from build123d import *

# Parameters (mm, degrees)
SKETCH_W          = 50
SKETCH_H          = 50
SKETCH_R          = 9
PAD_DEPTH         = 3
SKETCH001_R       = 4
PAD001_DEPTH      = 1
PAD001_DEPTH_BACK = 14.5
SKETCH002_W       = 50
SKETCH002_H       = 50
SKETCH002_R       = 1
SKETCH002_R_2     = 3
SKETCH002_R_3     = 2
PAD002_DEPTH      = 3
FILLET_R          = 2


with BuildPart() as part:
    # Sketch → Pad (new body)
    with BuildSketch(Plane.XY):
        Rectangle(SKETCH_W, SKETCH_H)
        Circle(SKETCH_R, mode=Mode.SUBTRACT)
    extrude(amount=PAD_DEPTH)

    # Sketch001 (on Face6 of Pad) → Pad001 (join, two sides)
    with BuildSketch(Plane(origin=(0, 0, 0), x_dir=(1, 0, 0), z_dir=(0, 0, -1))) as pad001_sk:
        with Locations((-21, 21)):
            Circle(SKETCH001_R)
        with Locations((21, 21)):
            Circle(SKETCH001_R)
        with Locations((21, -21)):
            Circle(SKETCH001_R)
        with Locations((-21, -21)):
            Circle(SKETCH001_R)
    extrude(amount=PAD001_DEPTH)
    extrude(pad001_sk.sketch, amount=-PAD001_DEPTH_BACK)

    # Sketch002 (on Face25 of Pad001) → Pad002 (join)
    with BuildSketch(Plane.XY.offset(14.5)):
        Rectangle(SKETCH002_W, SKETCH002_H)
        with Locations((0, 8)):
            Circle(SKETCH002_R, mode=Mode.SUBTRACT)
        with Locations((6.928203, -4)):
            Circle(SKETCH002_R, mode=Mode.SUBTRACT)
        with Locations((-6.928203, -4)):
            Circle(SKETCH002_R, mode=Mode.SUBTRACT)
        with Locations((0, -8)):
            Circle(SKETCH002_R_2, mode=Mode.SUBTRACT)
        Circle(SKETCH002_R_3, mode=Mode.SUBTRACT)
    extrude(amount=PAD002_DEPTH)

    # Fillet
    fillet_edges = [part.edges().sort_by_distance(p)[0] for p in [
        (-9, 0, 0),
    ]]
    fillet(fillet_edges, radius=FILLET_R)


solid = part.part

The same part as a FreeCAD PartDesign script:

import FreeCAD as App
import Part
import Sketcher
from FreeCAD import Vector


def edges_at(feature, points):
    """Names of the edges that pass closest to the given points."""
    edges = feature.Shape.Edges
    near = lambda p: min(range(len(edges)), key=lambda i: edges[i].distToShape(Part.Vertex(*p))[0])
    return sorted({f"Edge{near(p) + 1}" for p in points})

doc = App.newDocument("Part")
body = doc.addObject("PartDesign::Body", "Body")

# Sketch on XY plane
sketch1 = doc.addObject("Sketcher::SketchObject", "Sketch")
body.addObject(sketch1)
sketch1.AttachmentSupport = (doc.XY_Plane, [""])
sketch1.MapMode = "FlatFace"
sketch1.addGeometry(Part.LineSegment(Vector(-25, 25, 0), Vector(-25, -25, 0)), False)
sketch1.addGeometry(Part.LineSegment(Vector(-25, -25, 0), Vector(25, -25, 0)), False)
sketch1.addGeometry(Part.LineSegment(Vector(25, -25, 0), Vector(25, 25, 0)), False)
sketch1.addGeometry(Part.LineSegment(Vector(25, 25, 0), Vector(-25, 25, 0)), False)
sketch1.addGeometry(Part.Circle(Vector(0, 0, 0), Vector(0, 0, 1), 9), False)
sketch1.addConstraint(Sketcher.Constraint("Coincident", 0, 2, 1, 1))
sketch1.addConstraint(Sketcher.Constraint("Coincident", 1, 2, 2, 1))
sketch1.addConstraint(Sketcher.Constraint("Coincident", 2, 2, 3, 1))
sketch1.addConstraint(Sketcher.Constraint("Coincident", 3, 2, 0, 1))
sketch1.addConstraint(Sketcher.Constraint("Vertical", 0))
sketch1.addConstraint(Sketcher.Constraint("Horizontal", 1))
sketch1.addConstraint(Sketcher.Constraint("Vertical", 2))
sketch1.addConstraint(Sketcher.Constraint("Horizontal", 3))
sketch1.addConstraint(Sketcher.Constraint("Coincident", 4, 3, -1, 1))
sketch1.addConstraint(Sketcher.Constraint("Symmetric", 0, 2, 2, 2, -1, 1))
sketch1.addConstraint(Sketcher.Constraint("Equal", 3, 0))
sketch1.addConstraint(Sketcher.Constraint("Diameter", 4, 18.0))
sketch1.addConstraint(Sketcher.Constraint("DistanceX", 1, 1, 1, 2, 50.0))
pad1 = doc.addObject("PartDesign::Pad", "Pad")
body.addObject(pad1)
pad1.Profile = sketch1
pad1.Length = 3

# Sketch on XY plane
sketch2 = doc.addObject("Sketcher::SketchObject", "Sketch001")
body.addObject(sketch2)
sketch2.AttachmentSupport = (doc.XY_Plane, [""])
sketch2.MapMode = "FlatFace"
sketch2.addGeometry(Part.Circle(Vector(-21, -21, 0), Vector(0, 0, 1), 4), False)
sketch2.addGeometry(Part.Circle(Vector(21, -21, 0), Vector(0, 0, 1), 4), False)
sketch2.addGeometry(Part.Circle(Vector(21, 21, 0), Vector(0, 0, 1), 4), False)
sketch2.addGeometry(Part.Circle(Vector(-21, 21, 0), Vector(0, 0, 1), 4), False)
sketch2.addConstraint(Sketcher.Constraint("Equal", 0, 1))
sketch2.addConstraint(Sketcher.Constraint("Equal", 1, 2))
sketch2.addConstraint(Sketcher.Constraint("Equal", 2, 3))
sketch2.addConstraint(Sketcher.Constraint("Symmetric", 0, 3, 2, 3, -1, 1))
sketch2.addConstraint(Sketcher.Constraint("Symmetric", 1, 3, 3, 3, -1, 1))
sketch2.addConstraint(Sketcher.Constraint("Symmetric", 0, 3, 1, 3, -2))
sketch2.addConstraint(Sketcher.Constraint("Diameter", 0, 8.0))
sketch2.addConstraint(Sketcher.Constraint("DistanceX", 0, 3, -1, 1, 21.0))
sketch2.addConstraint(Sketcher.Constraint("DistanceY", 0, 3, -1, 1, 21.0))
pad2 = doc.addObject("PartDesign::Pad", "Pad001")
body.addObject(pad2)
pad2.Profile = sketch2
pad2.Type = "TwoLengths"
pad2.Length = 1
pad2.Length2 = 14.5
pad2.Reversed = True

# Sketch on XY plane
sketch3 = doc.addObject("Sketcher::SketchObject", "Sketch002")
body.addObject(sketch3)
sketch3.AttachmentSupport = (doc.XY_Plane, [""])
sketch3.MapMode = "FlatFace"
sketch3.AttachmentOffset = App.Placement(Vector(0, 0, 14.5), App.Rotation())
sketch3.addGeometry(Part.LineSegment(Vector(-25, 25, 0), Vector(-25, -25, 0)), False)
sketch3.addGeometry(Part.LineSegment(Vector(-25, -25, 0), Vector(25, -25, 0)), False)
sketch3.addGeometry(Part.LineSegment(Vector(25, -25, 0), Vector(25, 25, 0)), False)
sketch3.addGeometry(Part.LineSegment(Vector(25, 25, 0), Vector(-25, 25, 0)), False)
sketch3.addGeometry(Part.Circle(Vector(-6.9, -4, 0), Vector(0, 0, 1), 1), False)
sketch3.addGeometry(Part.Circle(Vector(0, -8, 0), Vector(0, 0, 1), 3), False)
sketch3.addGeometry(Part.Circle(Vector(6.9, -4, 0), Vector(0, 0, 1), 1), False)
sketch3.addGeometry(Part.Circle(Vector(0, 0, 0), Vector(0, 0, 1), 2), False)
sketch3.addGeometry(Part.Circle(Vector(0, 8, 0), Vector(0, 0, 1), 1), False)
sketch3.addConstraint(Sketcher.Constraint("Coincident", 0, 2, 1, 1))
sketch3.addConstraint(Sketcher.Constraint("Coincident", 1, 2, 2, 1))
sketch3.addConstraint(Sketcher.Constraint("Coincident", 2, 2, 3, 1))
sketch3.addConstraint(Sketcher.Constraint("Coincident", 3, 2, 0, 1))
sketch3.addConstraint(Sketcher.Constraint("Vertical", 0))
sketch3.addConstraint(Sketcher.Constraint("Horizontal", 1))
sketch3.addConstraint(Sketcher.Constraint("Vertical", 2))
sketch3.addConstraint(Sketcher.Constraint("Horizontal", 3))
sketch3.addConstraint(Sketcher.Constraint("Coincident", 7, 3, -1, 1))
sketch3.addConstraint(Sketcher.Constraint("Equal", 4, 6))
sketch3.addConstraint(Sketcher.Constraint("Equal", 6, 8))
sketch3.addConstraint(Sketcher.Constraint("Symmetric", 5, 3, 8, 3, -1, 1))
sketch3.addConstraint(Sketcher.Constraint("Symmetric", 0, 2, 2, 2, -1, 1))
sketch3.addConstraint(Sketcher.Constraint("Symmetric", 4, 3, 6, 3, -2))
sketch3.addConstraint(Sketcher.Constraint("PointOnObject", 5, 3, -2))
sketch3.addConstraint(Sketcher.Constraint("Equal", 3, 0))
sketch3.addConstraint(Sketcher.Constraint("Diameter", 4, 2.0))
sketch3.addConstraint(Sketcher.Constraint("Diameter", 5, 6.0))
sketch3.addConstraint(Sketcher.Constraint("Diameter", 7, 4.0))
sketch3.addConstraint(Sketcher.Constraint("DistanceX", 1, 1, 1, 2, 50.0))
sketch3.addConstraint(Sketcher.Constraint("DistanceY", 4, 3, -1, 1, 4.0))
sketch3.addConstraint(Sketcher.Constraint("DistanceY", 5, 3, -1, 1, 8.0))
sketch3.addConstraint(Sketcher.Constraint("DistanceX", 4, 3, -1, 1, 6.928203))
pad3 = doc.addObject("PartDesign::Pad", "Pad002")
body.addObject(pad3)
pad3.Profile = sketch3
pad3.Length = 3
doc.recompute()

fillet = doc.addObject("PartDesign::Fillet", "Fillet")
body.addObject(fillet)
fillet.Base = (pad3, edges_at(pad3, [(-9, 0, 0)]))
fillet.Radius = 2

doc.recompute()
